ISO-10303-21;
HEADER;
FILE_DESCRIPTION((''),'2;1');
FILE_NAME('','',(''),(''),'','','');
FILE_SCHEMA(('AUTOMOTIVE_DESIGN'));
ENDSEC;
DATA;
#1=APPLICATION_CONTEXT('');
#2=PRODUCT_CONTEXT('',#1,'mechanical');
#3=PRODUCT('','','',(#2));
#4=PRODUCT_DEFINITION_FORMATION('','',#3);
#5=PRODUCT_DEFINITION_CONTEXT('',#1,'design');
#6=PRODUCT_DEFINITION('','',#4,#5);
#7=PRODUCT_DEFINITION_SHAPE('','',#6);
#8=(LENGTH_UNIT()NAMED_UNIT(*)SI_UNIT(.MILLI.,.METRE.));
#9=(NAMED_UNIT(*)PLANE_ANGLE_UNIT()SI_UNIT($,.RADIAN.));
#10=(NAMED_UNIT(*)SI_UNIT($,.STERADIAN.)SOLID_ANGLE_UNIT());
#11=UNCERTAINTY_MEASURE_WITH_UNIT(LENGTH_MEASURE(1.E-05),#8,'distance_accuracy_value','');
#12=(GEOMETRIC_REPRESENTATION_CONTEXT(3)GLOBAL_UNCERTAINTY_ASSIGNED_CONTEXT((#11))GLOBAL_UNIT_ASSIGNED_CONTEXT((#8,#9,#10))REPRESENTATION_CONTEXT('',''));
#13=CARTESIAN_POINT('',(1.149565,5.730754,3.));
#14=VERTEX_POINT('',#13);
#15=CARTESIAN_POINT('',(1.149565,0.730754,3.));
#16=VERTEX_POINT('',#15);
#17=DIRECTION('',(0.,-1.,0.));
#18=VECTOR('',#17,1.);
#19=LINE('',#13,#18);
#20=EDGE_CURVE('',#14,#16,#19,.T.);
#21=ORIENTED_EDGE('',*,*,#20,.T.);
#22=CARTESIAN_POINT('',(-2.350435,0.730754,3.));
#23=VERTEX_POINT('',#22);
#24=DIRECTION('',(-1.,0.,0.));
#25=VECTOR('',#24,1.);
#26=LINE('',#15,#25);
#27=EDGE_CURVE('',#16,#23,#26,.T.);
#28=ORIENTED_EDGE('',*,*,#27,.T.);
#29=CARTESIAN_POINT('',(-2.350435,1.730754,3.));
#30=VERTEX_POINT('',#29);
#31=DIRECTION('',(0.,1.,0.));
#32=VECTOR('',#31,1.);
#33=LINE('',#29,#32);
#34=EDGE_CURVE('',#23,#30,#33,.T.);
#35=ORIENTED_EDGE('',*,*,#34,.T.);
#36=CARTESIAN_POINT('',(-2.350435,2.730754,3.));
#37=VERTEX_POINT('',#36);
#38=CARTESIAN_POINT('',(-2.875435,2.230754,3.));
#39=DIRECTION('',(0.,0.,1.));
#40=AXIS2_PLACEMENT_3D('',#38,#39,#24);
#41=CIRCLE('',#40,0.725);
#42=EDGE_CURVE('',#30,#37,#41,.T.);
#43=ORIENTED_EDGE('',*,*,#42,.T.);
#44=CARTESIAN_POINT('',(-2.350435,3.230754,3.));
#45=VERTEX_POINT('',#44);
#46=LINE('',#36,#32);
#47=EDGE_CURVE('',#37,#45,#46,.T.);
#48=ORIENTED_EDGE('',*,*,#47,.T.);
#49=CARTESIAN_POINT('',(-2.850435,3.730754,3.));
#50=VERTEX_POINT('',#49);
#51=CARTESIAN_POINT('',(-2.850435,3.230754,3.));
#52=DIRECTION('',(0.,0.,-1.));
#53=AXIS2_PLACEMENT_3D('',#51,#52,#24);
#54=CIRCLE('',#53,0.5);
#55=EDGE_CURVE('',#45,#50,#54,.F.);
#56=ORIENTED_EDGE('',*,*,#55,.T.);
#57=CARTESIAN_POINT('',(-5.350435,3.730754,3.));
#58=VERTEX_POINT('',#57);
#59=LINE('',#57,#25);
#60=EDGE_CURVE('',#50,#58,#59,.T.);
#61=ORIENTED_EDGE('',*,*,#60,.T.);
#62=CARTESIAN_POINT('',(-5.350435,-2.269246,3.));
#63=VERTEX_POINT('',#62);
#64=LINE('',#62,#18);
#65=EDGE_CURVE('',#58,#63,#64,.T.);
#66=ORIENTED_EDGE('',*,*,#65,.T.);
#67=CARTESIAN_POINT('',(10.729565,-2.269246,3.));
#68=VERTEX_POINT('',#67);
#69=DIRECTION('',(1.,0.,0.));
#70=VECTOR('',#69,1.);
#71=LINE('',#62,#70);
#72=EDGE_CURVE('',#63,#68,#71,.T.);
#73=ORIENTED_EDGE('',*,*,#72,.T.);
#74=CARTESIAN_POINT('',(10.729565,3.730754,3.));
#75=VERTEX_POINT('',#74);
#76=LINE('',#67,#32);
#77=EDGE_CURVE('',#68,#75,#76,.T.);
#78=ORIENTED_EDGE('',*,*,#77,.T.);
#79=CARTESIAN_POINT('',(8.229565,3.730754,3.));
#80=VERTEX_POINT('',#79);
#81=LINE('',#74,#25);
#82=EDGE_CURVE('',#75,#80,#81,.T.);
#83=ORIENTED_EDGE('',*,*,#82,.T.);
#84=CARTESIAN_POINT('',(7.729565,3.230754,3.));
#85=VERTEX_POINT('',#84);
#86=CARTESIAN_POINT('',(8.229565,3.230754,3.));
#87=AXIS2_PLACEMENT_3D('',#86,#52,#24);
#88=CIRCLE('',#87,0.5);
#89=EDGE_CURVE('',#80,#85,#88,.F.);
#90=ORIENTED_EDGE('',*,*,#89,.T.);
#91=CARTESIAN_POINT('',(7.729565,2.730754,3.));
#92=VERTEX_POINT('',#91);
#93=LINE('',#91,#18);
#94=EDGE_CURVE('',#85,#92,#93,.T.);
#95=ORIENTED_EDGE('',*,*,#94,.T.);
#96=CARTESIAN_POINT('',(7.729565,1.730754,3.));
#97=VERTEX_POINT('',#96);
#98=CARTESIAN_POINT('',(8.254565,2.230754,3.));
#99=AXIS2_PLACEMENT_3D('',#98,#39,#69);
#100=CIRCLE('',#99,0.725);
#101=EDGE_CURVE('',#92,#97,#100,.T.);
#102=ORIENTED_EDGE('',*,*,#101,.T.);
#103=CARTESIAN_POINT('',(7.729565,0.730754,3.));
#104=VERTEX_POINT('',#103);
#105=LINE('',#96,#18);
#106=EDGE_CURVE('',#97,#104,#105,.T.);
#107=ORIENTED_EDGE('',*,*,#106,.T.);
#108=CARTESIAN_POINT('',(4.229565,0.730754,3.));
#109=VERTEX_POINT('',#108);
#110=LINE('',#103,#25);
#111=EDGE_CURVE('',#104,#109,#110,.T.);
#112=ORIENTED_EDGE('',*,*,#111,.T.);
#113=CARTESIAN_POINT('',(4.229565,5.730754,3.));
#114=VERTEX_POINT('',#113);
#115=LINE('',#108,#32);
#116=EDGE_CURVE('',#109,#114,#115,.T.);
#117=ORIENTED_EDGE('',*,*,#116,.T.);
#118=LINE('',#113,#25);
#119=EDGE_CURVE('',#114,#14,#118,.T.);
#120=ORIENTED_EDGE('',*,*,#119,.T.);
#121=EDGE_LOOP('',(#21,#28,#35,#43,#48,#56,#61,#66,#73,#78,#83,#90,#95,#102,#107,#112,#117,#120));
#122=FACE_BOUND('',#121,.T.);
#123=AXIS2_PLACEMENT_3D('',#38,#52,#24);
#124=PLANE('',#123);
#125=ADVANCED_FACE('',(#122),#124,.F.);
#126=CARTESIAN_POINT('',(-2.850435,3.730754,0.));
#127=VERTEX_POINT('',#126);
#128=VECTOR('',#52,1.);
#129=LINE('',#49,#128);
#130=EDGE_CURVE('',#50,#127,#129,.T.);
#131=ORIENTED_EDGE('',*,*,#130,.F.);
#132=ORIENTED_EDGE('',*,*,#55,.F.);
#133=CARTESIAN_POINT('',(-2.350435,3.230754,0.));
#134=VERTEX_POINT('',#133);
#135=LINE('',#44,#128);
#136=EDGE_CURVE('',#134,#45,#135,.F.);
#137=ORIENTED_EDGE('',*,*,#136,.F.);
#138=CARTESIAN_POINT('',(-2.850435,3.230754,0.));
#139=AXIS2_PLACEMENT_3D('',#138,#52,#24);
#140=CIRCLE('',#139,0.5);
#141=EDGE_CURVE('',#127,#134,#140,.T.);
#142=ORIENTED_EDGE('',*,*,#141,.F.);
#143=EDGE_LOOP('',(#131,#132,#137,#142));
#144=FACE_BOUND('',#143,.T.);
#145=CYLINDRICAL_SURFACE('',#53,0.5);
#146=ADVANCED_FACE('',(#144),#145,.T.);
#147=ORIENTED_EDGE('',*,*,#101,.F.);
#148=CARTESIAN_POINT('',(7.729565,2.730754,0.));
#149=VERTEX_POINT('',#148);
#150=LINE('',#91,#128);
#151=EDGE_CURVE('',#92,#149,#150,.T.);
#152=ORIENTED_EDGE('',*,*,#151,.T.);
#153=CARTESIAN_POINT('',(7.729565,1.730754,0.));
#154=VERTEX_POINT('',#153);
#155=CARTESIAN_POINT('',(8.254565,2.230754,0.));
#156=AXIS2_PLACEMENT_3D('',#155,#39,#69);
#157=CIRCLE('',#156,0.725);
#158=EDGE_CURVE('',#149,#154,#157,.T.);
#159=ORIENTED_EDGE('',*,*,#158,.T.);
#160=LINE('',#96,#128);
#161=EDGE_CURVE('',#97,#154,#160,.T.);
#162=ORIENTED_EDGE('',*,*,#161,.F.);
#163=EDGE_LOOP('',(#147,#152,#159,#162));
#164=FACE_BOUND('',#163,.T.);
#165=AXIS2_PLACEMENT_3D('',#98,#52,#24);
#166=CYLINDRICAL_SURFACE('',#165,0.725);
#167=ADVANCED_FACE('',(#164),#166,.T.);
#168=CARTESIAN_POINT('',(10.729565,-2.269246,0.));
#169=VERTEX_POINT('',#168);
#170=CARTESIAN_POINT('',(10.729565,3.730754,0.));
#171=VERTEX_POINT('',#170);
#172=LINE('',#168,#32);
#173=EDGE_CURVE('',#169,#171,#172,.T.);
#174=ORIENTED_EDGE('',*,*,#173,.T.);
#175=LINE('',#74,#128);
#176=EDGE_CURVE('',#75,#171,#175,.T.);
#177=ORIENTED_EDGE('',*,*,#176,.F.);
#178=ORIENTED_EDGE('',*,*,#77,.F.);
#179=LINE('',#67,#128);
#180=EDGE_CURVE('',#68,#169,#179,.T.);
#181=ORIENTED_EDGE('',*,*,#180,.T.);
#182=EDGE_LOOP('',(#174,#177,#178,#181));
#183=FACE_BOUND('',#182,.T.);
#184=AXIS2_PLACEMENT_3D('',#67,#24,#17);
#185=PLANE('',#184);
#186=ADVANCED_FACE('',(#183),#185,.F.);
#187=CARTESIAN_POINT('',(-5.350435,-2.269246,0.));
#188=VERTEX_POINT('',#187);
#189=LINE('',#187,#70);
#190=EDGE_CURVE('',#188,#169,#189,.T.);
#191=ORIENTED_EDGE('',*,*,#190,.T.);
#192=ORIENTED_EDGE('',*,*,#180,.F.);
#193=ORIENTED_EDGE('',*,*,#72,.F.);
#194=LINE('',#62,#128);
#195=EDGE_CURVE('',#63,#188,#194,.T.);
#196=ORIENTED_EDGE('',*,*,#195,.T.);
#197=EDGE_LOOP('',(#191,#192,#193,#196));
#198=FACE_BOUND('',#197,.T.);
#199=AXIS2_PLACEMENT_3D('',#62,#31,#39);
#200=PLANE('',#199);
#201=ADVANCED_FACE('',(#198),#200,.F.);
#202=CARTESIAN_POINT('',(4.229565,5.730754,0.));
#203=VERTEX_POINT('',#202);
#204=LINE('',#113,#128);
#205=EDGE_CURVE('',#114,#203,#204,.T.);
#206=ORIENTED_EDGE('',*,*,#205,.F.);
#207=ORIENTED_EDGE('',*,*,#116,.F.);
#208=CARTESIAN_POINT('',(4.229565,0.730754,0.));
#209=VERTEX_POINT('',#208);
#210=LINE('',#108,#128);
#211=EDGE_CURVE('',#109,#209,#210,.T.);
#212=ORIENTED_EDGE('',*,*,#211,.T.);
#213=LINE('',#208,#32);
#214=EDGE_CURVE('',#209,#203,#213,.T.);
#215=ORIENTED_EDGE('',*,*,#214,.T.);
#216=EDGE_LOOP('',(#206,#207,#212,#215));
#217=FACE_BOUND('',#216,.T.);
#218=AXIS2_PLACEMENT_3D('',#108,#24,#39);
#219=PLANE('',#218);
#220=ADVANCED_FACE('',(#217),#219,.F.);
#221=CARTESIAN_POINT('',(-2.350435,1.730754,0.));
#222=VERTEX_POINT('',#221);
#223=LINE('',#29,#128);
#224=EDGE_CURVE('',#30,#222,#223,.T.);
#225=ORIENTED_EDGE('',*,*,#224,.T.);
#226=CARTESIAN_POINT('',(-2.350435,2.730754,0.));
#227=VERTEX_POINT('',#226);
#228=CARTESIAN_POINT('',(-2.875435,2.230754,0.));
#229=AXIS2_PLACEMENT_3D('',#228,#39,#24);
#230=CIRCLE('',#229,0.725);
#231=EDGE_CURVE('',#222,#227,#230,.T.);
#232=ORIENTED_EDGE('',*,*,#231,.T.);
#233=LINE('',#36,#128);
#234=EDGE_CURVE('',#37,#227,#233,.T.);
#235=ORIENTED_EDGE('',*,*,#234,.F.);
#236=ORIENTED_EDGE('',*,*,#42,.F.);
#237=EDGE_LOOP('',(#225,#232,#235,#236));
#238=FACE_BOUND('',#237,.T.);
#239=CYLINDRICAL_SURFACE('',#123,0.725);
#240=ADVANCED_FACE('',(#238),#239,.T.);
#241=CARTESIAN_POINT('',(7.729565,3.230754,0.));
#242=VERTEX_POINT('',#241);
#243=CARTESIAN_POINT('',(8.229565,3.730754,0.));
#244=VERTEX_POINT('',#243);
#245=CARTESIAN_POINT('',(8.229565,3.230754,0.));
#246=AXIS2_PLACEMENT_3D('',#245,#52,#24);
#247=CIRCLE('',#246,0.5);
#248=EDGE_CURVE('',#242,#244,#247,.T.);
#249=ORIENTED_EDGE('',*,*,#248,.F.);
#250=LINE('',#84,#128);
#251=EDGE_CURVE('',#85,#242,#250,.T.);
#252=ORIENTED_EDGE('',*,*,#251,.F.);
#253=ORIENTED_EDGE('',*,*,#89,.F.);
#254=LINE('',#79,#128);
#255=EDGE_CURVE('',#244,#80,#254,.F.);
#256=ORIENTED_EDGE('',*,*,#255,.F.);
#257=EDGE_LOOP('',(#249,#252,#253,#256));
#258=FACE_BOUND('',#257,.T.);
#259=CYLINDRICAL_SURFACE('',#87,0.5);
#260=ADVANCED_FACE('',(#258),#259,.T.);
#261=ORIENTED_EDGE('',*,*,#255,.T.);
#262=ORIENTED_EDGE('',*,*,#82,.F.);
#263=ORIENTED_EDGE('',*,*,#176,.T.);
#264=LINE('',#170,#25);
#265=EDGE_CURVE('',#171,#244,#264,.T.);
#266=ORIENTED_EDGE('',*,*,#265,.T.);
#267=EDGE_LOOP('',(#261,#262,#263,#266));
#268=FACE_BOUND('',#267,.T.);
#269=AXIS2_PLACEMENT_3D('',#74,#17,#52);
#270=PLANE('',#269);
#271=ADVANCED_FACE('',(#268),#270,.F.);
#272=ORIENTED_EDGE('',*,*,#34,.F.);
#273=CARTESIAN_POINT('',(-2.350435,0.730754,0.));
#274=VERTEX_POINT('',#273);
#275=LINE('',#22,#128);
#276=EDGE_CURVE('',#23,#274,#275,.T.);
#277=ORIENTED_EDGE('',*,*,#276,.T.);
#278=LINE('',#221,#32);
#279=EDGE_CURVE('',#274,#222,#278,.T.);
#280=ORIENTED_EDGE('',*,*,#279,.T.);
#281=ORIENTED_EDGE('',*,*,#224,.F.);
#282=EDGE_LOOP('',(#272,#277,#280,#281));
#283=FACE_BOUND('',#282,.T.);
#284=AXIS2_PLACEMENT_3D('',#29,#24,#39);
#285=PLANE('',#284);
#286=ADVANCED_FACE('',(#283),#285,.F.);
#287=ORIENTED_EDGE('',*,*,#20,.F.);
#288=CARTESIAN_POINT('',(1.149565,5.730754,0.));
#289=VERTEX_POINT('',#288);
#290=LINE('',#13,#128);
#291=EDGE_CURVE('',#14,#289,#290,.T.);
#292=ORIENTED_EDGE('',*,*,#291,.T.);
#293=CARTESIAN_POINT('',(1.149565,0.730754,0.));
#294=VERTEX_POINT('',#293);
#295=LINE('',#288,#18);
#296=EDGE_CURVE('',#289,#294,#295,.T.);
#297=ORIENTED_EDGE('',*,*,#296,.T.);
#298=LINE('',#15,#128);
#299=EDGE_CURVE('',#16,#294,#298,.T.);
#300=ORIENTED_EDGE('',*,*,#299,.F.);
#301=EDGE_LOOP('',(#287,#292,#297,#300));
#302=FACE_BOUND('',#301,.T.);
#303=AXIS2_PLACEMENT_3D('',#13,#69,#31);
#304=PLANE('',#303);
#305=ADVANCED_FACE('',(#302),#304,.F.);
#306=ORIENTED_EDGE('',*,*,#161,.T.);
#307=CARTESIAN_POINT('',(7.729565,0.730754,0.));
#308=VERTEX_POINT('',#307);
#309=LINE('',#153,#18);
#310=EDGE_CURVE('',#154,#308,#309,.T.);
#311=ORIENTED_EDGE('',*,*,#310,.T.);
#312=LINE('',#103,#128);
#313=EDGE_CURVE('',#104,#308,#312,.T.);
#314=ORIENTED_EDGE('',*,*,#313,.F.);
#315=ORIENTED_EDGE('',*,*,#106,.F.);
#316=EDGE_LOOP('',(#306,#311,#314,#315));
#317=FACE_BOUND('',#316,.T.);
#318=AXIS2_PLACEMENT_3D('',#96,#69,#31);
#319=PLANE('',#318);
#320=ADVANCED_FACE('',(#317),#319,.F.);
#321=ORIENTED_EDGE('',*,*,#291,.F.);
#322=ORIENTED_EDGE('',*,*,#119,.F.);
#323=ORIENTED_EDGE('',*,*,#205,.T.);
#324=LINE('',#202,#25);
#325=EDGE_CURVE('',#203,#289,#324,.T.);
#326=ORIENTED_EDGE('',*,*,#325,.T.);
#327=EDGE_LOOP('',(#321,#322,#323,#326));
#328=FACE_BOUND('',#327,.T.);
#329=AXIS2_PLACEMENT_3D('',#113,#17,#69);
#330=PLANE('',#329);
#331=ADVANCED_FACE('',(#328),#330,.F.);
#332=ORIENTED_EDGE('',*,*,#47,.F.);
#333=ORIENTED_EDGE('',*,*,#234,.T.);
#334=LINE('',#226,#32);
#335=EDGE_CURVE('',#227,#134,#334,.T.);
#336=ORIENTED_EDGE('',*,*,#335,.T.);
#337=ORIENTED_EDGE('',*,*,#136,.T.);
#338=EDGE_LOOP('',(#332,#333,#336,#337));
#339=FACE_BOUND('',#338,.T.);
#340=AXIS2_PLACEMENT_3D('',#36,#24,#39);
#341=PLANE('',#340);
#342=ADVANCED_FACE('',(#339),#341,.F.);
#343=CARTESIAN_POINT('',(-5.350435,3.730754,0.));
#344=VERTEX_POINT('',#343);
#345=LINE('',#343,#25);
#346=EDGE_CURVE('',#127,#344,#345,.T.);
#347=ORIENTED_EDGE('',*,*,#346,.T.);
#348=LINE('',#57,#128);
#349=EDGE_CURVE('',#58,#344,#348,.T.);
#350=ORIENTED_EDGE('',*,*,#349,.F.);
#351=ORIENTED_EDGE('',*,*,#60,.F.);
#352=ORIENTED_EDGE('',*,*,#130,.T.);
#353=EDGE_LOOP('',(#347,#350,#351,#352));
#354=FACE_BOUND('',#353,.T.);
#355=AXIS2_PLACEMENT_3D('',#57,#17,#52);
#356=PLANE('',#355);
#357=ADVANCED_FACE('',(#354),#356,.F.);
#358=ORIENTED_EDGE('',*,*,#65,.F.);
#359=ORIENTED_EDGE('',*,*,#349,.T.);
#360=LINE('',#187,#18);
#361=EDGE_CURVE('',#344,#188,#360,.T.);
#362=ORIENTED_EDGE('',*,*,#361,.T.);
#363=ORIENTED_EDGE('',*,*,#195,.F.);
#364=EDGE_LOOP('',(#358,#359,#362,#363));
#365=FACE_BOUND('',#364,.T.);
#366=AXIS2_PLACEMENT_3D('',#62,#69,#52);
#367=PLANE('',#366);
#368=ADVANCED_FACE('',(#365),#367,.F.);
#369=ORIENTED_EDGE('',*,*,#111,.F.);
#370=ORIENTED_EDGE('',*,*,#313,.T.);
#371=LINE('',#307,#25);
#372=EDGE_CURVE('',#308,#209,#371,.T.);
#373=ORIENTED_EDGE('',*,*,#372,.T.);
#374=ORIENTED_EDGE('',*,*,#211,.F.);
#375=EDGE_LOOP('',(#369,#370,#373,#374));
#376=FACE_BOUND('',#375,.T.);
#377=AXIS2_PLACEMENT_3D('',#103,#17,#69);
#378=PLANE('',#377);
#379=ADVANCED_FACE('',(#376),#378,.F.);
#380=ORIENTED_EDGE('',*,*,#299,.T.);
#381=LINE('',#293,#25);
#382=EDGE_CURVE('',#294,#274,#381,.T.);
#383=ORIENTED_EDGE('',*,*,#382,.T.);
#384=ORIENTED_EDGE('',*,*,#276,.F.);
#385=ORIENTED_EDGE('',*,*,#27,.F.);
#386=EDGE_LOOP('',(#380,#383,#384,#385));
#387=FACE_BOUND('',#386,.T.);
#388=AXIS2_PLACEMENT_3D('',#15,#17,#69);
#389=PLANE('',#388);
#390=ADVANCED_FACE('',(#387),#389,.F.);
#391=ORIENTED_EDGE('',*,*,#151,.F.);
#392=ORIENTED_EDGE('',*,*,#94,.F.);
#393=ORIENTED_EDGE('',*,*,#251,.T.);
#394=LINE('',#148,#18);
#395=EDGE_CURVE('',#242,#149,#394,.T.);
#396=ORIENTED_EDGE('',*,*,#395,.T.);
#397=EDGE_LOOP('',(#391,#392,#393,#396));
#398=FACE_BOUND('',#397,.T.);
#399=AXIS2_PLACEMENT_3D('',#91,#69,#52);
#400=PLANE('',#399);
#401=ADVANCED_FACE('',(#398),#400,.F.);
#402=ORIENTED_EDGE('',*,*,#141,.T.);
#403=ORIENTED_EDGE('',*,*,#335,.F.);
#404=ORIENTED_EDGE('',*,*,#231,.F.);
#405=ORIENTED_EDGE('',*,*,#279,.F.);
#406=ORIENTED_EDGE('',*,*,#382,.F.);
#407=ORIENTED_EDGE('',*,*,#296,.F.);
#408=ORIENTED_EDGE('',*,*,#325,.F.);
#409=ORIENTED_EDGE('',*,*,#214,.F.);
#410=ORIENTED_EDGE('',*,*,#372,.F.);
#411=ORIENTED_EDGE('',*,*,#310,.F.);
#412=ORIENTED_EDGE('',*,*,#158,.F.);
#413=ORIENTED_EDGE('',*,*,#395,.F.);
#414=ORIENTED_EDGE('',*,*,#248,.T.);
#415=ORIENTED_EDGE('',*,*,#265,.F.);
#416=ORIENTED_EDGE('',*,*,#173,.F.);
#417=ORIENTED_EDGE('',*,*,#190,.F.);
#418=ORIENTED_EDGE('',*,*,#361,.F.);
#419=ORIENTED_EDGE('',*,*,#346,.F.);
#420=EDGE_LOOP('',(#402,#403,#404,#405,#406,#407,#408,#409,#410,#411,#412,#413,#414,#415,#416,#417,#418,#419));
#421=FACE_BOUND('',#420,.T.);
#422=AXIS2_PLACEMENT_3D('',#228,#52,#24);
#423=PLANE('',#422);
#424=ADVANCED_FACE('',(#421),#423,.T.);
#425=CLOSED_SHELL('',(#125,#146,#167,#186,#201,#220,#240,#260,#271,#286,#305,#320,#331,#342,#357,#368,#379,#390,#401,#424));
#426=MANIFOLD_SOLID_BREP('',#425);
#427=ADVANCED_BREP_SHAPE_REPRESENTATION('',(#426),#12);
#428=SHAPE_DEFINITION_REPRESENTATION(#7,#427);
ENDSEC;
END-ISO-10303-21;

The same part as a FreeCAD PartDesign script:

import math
import FreeCAD as App
import Part
import Sketcher
from FreeCAD import Vector
Q = App.Units.Quantity


def edges_at(feature, points):
    """Names of the edges that pass closest to the given points."""
    edges = feature.Shape.Edges
    near = lambda p: min(range(len(edges)), key=lambda i: edges[i].distToShape(Part.Vertex(*p))[0])
    return sorted({f"Edge{near(p) + 1}" for p in points})

doc = App.newDocument("Part")
params = doc.addObject("Spreadsheet::Sheet", "Params")
for row, (alias, value) in enumerate([
    ("sketch1_width", "3 mm"),
    ("sketch1_height", "6 mm"),
    ("sketch1_height2", "1 mm"),
    ("sketch1_height3", "5 mm"),
    ("sketch1_width2", "3.5 mm"),
    ("pad1_length", "3 mm"),
    ("fillet_radius", "0.5 mm"),
], start=1):
    params.set(f"A{row}", alias)
    params.set(f"B{row}", "=" + value)
    params.setAlias(f"B{row}", alias)

body = doc.addObject("PartDesign::Body", "Body")

# Sketch on XY plane
sketch1 = doc.addObject("Sketcher::SketchObject", "Sketch")
body.addObject(sketch1)
sketch1.AttachmentSupport = (doc.XY_Plane, [""])
sketch1.MapMode = "FlatFace"
sketch1.addGeometry([
    Part.LineSegment(Vector(-5.4, -2.3, 0), Vector(10.7, -2.3, 0)),  # 0
    Part.LineSegment(Vector(10.7, -2.3, 0), Vector(10.7, 3.7, 0)),  # 1
    Part.LineSegment(Vector(10.7, 3.7, 0), Vector(7.7, 3.7, 0)),  # 2
    Part.LineSegment(Vector(7.7, 3.7, 0), Vector(7.7, 2.7, 0)),  # 3
    Part.ArcOfCircle(Part.Circle(Vector(8.3, 2.2, 0), Vector(0, 0, 1), 0.7), math.radians(136), math.radians(224)),  # 4
    Part.LineSegment(Vector(7.7, 1.7, 0), Vector(7.7, 0.7, 0)),  # 5
    Part.LineSegment(Vector(7.7, 0.7, 0), Vector(4.2, 0.7, 0)),  # 6
    Part.LineSegment(Vector(4.2, 0.7, 0), Vector(4.2, 5.7, 0)),  # 7
    Part.LineSegment(Vector(4.2, 5.7, 0), Vector(1.1, 5.7, 0)),  # 8
    Part.LineSegment(Vector(1.1, 5.7, 0), Vector(1.1, 0.7, 0)),  # 9
    Part.LineSegment(Vector(1.1, 0.7, 0), Vector(-2.4, 0.7, 0)),  # 10
    Part.LineSegment(Vector(-2.4, 0.7, 0), Vector(-2.4, 1.7, 0)),  # 11
    Part.ArcOfCircle(Part.Circle(Vector(-2.9, 2.2, 0), Vector(0, 0, 1), 0.7), math.radians(-44), math.radians(44)),  # 12
    Part.LineSegment(Vector(-2.4, 2.7, 0), Vector(-2.4, 3.7, 0)),  # 13
    Part.LineSegment(Vector(-2.4, 3.7, 0), Vector(-5.4, 3.7, 0)),  # 14
    Part.LineSegment(Vector(-5.4, 3.7, 0), Vector(-5.4, -2.3, 0)),  # 15
], False)
sketch1.addConstraint([
    Sketcher.Constraint("Coincident", 0, 2, 1, 1),
    Sketcher.Constraint("Coincident", 1, 2, 2, 1),
    Sketcher.Constraint("Coincident", 2, 2, 3, 1),
    Sketcher.Constraint("Coincident", 3, 2, 4, 1),
    Sketcher.Constraint("Coincident", 4, 2, 5, 1),
    Sketcher.Constraint("Coincident", 5, 2, 6, 1),
    Sketcher.Constraint("Coincident", 6, 2, 7, 1),
    Sketcher.Constraint("Coincident", 7, 2, 8, 1),
    Sketcher.Constraint("Coincident", 8, 2, 9, 1),
    Sketcher.Constraint("Coincident", 9, 2, 10, 1),
    Sketcher.Constraint("Coincident", 10, 2, 11, 1),
    Sketcher.Constraint("Coincident", 11, 2, 12, 1),
    Sketcher.Constraint("Coincident", 12, 2, 13, 1),
    Sketcher.Constraint("Coincident", 13, 2, 14, 1),
    Sketcher.Constraint("Coincident", 14, 2, 15, 1),
    Sketcher.Constraint("Coincident", 15, 2, 0, 1),
    Sketcher.Constraint("Horizontal", 0),
    Sketcher.Constraint("Vertical", 1),
    Sketcher.Constraint("Horizontal", 2),
    Sketcher.Constraint("Vertical", 3),
    Sketcher.Constraint("Vertical", 5),
    Sketcher.Constraint("Horizontal", 6),
    Sketcher.Constraint("Vertical", 7),
    Sketcher.Constraint("Horizontal", 8),
    Sketcher.Constraint("Vertical", 9),
    Sketcher.Constraint("Horizontal", 10),
    Sketcher.Constraint("Vertical", 11),
    Sketcher.Constraint("Vertical", 13),
    Sketcher.Constraint("Horizontal", 14),
    Sketcher.Constraint("Vertical", 15),
    Sketcher.Constraint("Equal", 4, 12),
    Sketcher.Constraint("Horizontal", 4, 3, 12, 3),
    Sketcher.Constraint("Horizontal", 6, 2, 9, 2),
    Sketcher.Constraint("Horizontal", 4, 2, 11, 2),
    Sketcher.Constraint("Horizontal", 3, 2, 12, 2),
    Sketcher.Constraint("Horizontal", 2, 2, 13, 2),
    Sketcher.Constraint("Vertical", 3, 2, 4, 2),
    Sketcher.Constraint("Equal", 6, 10),
    Sketcher.Constraint("Equal", 2, 14),
    Sketcher.Constraint("Equal", 3, 5),
    Sketcher.Constraint("DistanceX", 2, 2, 2, 1, Q("3 mm")),
    Sketcher.Constraint("DistanceY", 1, 1, 1, 2, Q("6 mm")),
    Sketcher.Constraint("DistanceY", 3, 2, 3, 1, Q("1 mm")),
    Sketcher.Constraint("DistanceY", 7, 1, 7, 2, Q("5 mm")),
    Sketcher.Constraint("DistanceX", 6, 2, 6, 1, Q("3.5 mm")),
    Sketcher.Constraint("Radius", 4, Q("0.725 mm")),
    Sketcher.Constraint("DistanceY", 4, 2, 3, 2, Q("1 mm")),
    Sketcher.Constraint("DistanceX", 0, 1, 0, 2, Q("16.08 mm")),
    Sketcher.Constraint("DistanceX", -1, 1, 4, 3, Q("8.254565 mm")),
    Sketcher.Constraint("DistanceY", -1, 1, 4, 3, Q("2.230754 mm")),
])
sketch1.setExpression("Constraints[40]", "Params.sketch1_width")
sketch1.setExpression("Constraints[41]", "Params.sketch1_height")
sketch1.setExpression("Constraints[42]", "Params.sketch1_height2")
sketch1.setExpression("Constraints[43]", "Params.sketch1_height3")
sketch1.setExpression("Constraints[44]", "Params.sketch1_width2")
pad1 = doc.addObject("PartDesign::Pad", "Pad")
body.addObject(pad1)
pad1.Profile = sketch1
pad1.setExpression("Length", "Params.pad1_length")
doc.recompute()

fillet = doc.addObject("PartDesign::Fillet", "Fillet")
body.addObject(fillet)
fillet.Base = (pad1, edges_at(pad1, [(-2.35, 3.731, 1.5), (7.73, 3.731, 1.5)]))
fillet.setExpression("Radius", "Params.fillet_radius")

doc.recompute()
